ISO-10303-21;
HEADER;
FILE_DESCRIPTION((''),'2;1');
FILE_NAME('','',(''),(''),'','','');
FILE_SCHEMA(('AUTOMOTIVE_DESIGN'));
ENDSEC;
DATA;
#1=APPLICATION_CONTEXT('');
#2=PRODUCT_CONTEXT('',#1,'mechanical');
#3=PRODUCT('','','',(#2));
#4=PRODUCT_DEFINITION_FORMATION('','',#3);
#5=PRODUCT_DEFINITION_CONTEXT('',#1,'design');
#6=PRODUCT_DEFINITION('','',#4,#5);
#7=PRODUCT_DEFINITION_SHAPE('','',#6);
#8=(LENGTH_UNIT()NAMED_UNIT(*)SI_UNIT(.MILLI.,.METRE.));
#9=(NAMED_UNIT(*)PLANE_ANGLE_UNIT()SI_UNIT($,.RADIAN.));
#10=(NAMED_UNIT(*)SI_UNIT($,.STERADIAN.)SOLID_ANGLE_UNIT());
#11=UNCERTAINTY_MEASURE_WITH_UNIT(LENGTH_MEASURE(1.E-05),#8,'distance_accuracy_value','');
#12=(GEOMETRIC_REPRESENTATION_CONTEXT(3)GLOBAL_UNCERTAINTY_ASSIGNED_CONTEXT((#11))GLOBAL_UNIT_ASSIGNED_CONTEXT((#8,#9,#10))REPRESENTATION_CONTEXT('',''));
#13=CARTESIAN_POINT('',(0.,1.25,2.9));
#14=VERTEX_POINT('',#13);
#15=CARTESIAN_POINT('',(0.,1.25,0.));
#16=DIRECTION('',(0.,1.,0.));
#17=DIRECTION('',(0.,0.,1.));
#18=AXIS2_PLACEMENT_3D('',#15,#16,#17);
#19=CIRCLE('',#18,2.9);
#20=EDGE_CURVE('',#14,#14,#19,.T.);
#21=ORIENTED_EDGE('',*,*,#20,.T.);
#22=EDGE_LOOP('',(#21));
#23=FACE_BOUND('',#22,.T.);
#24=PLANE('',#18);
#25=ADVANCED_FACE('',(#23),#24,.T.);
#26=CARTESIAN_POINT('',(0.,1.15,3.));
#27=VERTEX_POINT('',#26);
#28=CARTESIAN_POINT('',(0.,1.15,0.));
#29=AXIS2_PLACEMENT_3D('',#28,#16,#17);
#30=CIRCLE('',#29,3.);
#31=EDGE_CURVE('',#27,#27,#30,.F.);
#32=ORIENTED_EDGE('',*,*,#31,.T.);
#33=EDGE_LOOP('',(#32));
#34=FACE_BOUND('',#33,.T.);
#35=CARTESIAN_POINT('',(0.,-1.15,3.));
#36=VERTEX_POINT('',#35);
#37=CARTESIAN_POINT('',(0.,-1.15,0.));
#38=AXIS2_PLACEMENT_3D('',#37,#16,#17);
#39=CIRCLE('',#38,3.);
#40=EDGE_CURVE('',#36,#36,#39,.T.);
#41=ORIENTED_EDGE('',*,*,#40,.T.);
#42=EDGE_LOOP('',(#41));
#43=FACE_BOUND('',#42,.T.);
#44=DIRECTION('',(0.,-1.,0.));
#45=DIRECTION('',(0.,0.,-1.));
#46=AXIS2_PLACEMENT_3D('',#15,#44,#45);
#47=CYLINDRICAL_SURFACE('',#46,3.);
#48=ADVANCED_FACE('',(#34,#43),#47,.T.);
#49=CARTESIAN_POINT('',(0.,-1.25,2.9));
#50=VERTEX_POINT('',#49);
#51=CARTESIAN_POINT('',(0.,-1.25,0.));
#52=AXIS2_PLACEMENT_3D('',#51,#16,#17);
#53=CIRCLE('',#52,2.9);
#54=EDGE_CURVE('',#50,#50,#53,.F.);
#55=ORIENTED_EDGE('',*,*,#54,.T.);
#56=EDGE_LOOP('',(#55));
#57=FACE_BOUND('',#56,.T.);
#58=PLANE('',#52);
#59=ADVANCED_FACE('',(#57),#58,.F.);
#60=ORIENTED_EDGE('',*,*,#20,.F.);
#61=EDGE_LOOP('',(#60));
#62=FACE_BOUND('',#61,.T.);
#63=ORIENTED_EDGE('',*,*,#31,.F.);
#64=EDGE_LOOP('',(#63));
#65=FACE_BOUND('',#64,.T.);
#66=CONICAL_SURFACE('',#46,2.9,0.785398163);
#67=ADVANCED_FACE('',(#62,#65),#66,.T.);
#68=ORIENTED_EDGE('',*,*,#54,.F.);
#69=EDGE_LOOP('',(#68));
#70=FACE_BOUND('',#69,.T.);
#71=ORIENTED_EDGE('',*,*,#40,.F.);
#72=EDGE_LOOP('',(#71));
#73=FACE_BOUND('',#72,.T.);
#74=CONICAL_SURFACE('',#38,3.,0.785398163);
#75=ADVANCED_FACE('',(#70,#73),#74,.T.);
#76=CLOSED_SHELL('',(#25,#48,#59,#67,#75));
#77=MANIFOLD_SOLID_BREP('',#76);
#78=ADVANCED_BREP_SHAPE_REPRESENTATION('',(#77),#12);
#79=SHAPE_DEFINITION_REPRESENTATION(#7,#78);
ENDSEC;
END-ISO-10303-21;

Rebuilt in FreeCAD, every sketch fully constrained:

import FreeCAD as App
import Part
import Sketcher
from FreeCAD import Vector


def edges_at(feature, points):
    """Names of the edges that pass closest to the given points."""
    edges = feature.Shape.Edges
    near = lambda p: min(range(len(edges)), key=lambda i: edges[i].distToShape(Part.Vertex(*p))[0])
    return sorted({f"Edge{near(p) + 1}" for p in points})

doc = App.newDocument("Part")
params = doc.addObject("Spreadsheet::Sheet", "Params")
for row, (alias, value) in enumerate([
    ("sketch1_diameter", "6 mm"),
    ("pad1_length", "2.5 mm"),
    ("chamfer_size", "0.1 mm"),
], start=1):
    params.set(f"A{row}", alias)
    params.set(f"B{row}", "=" + value)
    params.setAlias(f"B{row}", alias)

body = doc.addObject("PartDesign::Body", "Body")

# Sketch on XZ plane
sketch1 = body.newObject("Sketcher::SketchObject", "Sketch")
sketch1.AttachmentSupport = (doc.getObject("XZ_Plane"), [""])
sketch1.MapMode = "FlatFace"
sketch1.addGeometry(Part.Circle(Vector(0, 0, 0), Vector(0, 0, 1), 3), False)
sketch1.addConstraint([
    Sketcher.Constraint("Coincident", 0, 3, -1, 1),
    Sketcher.Constraint("Diameter", 0, 6.0),
])
sketch1.setExpression("Constraints[1]", "Params.sketch1_diameter")
pad1 = body.newObject("PartDesign::Pad", "Pad")
pad1.Profile = sketch1
pad1.setExpression("Length", "Params.pad1_length")
pad1.Midplane = True
doc.recompute()

chamfer = body.newObject("PartDesign::Chamfer", "Chamfer")
chamfer.Base = (pad1, edges_at(pad1, [(-3, -1.25, 0), (-3, 1.25, 0)]))
chamfer.setExpression("Size", "Params.chamfer_size")

doc.recompute()
